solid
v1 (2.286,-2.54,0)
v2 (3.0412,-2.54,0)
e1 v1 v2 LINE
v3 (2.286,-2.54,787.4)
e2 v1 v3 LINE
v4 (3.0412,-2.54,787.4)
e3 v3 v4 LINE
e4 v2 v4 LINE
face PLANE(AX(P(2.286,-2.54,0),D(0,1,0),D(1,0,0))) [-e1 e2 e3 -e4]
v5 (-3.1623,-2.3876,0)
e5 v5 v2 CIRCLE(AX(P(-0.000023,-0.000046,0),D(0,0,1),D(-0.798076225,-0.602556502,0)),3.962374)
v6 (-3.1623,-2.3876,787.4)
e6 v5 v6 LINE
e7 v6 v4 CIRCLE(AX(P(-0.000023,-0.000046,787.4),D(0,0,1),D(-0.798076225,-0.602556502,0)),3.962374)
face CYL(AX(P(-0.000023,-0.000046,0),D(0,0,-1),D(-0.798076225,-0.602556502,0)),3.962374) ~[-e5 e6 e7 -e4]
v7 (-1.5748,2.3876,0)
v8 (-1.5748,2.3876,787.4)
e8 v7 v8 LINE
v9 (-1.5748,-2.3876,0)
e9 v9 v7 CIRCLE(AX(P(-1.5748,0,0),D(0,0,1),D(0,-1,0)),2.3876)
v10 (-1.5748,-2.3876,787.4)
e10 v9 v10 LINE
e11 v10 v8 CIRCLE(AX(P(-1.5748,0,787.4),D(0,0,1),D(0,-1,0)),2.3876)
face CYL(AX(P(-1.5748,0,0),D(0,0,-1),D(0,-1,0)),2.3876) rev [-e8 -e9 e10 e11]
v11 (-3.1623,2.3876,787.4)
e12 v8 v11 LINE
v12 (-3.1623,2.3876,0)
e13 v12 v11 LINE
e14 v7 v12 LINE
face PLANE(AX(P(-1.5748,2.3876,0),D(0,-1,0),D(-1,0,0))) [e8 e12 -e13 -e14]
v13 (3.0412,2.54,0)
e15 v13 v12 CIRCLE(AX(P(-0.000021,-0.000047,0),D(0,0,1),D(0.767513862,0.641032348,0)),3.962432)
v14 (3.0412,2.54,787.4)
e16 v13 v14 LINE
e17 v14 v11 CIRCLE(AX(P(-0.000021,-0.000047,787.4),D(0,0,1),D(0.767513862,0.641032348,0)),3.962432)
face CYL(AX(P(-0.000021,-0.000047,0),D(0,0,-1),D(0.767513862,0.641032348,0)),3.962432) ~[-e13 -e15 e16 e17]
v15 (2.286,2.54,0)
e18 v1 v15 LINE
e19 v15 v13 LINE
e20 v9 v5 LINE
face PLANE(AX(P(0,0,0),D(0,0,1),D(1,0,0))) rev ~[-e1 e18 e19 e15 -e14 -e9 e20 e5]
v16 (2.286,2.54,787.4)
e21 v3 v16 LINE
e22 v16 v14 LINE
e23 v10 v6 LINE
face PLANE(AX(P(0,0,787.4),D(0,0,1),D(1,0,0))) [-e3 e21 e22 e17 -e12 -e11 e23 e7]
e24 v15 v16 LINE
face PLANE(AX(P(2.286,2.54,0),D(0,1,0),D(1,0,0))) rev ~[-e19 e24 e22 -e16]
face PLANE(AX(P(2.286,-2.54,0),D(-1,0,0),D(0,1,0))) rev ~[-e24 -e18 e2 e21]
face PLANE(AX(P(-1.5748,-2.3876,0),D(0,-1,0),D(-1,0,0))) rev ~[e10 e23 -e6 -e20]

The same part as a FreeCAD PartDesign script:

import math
import FreeCAD as App
import Part
import Sketcher
from FreeCAD import Vector
Q = App.Units.Quantity

doc = App.newDocument("Part")
body = doc.addObject("PartDesign::Body", "Body")

# Sketch on XY plane
sketch1 = doc.addObject("Sketcher::SketchObject", "Sketch")
body.addObject(sketch1)
sketch1.AttachmentSupport = (doc.XY_Plane, [""])
sketch1.MapMode = "FlatFace"
sketch1.addGeometry([
    Part.ArcOfCircle(Part.Circle(Vector(-1.6, 0, 0), Vector(0, 0, 1), 2.4), math.radians(-90), math.radians(90)),  # 0
    Part.LineSegment(Vector(-1.6, -2.4, 0), Vector(-3.2, -2.4, 0)),  # 1
    Part.ArcOfCircle(Part.Circle(Vector(0, 0, 0), Vector(0, 0, 1), 4), math.radians(-143), math.radians(-40)),  # 2
    Part.LineSegment(Vector(3, -2.5, 0), Vector(2.3, -2.5, 0)),  # 3
    Part.LineSegment(Vector(2.3, -2.5, 0), Vector(2.3, 2.5, 0)),  # 4
    Part.LineSegment(Vector(2.3, 2.5, 0), Vector(3, 2.5, 0)),  # 5
    Part.ArcOfCircle(Part.Circle(Vector(0, 0, 0), Vector(0, 0, 1), 4), math.radians(40), math.radians(143)),  # 6
    Part.LineSegment(Vector(-3.2, 2.4, 0), Vector(-1.6, 2.4, 0)),  # 7
], False)
sketch1.addConstraint([
    Sketcher.Constraint("Tangent", 0, 1, 1, 1),
    Sketcher.Constraint("Coincident", 1, 2, 2, 1),
    Sketcher.Constraint("Coincident", 2, 2, 3, 1),
    Sketcher.Constraint("Coincident", 3, 2, 4, 1),
    Sketcher.Constraint("Coincident", 4, 2, 5, 1),
    Sketcher.Constraint("Coincident", 5, 2, 6, 1),
    Sketcher.Constraint("Coincident", 6, 2, 7, 1),
    Sketcher.Constraint("Tangent", 7, 2, 0, 2),
    Sketcher.Constraint("Horizontal", 1),
    Sketcher.Constraint("Horizontal", 3),
    Sketcher.Constraint("Vertical", 4),
    Sketcher.Constraint("Horizontal", 5),
    Sketcher.Constraint("Horizontal", 7),
    Sketcher.Constraint("Coincident", 2, 3, -1, 1),
    Sketcher.Constraint("Coincident", 6, 3, -1, 1),
    Sketcher.Constraint("Equal", 2, 6),
    Sketcher.Constraint("PointOnObject", 0, 3, -1),
    Sketcher.Constraint("Vertical", 2, 2, 5, 2),
    Sketcher.Constraint("DistanceY", 4, 1, 4, 2, Q("0.2 in")),
    Sketcher.Constraint("Radius", 0, Q("0.094 in")),
    Sketcher.Constraint("Radius", 2, Q("0.156 in")),
    Sketcher.Constraint("DistanceX", -1, 1, 3, 2, Q("0.09 in")),
    Sketcher.Constraint("DistanceX", 0, 3, -1, 1, Q("0.062 in")),
])
pad1 = doc.addObject("PartDesign::Pad", "Pad")
body.addObject(pad1)
pad1.Profile = sketch1
pad1.Length = Q("31 in")

doc.recompute()
